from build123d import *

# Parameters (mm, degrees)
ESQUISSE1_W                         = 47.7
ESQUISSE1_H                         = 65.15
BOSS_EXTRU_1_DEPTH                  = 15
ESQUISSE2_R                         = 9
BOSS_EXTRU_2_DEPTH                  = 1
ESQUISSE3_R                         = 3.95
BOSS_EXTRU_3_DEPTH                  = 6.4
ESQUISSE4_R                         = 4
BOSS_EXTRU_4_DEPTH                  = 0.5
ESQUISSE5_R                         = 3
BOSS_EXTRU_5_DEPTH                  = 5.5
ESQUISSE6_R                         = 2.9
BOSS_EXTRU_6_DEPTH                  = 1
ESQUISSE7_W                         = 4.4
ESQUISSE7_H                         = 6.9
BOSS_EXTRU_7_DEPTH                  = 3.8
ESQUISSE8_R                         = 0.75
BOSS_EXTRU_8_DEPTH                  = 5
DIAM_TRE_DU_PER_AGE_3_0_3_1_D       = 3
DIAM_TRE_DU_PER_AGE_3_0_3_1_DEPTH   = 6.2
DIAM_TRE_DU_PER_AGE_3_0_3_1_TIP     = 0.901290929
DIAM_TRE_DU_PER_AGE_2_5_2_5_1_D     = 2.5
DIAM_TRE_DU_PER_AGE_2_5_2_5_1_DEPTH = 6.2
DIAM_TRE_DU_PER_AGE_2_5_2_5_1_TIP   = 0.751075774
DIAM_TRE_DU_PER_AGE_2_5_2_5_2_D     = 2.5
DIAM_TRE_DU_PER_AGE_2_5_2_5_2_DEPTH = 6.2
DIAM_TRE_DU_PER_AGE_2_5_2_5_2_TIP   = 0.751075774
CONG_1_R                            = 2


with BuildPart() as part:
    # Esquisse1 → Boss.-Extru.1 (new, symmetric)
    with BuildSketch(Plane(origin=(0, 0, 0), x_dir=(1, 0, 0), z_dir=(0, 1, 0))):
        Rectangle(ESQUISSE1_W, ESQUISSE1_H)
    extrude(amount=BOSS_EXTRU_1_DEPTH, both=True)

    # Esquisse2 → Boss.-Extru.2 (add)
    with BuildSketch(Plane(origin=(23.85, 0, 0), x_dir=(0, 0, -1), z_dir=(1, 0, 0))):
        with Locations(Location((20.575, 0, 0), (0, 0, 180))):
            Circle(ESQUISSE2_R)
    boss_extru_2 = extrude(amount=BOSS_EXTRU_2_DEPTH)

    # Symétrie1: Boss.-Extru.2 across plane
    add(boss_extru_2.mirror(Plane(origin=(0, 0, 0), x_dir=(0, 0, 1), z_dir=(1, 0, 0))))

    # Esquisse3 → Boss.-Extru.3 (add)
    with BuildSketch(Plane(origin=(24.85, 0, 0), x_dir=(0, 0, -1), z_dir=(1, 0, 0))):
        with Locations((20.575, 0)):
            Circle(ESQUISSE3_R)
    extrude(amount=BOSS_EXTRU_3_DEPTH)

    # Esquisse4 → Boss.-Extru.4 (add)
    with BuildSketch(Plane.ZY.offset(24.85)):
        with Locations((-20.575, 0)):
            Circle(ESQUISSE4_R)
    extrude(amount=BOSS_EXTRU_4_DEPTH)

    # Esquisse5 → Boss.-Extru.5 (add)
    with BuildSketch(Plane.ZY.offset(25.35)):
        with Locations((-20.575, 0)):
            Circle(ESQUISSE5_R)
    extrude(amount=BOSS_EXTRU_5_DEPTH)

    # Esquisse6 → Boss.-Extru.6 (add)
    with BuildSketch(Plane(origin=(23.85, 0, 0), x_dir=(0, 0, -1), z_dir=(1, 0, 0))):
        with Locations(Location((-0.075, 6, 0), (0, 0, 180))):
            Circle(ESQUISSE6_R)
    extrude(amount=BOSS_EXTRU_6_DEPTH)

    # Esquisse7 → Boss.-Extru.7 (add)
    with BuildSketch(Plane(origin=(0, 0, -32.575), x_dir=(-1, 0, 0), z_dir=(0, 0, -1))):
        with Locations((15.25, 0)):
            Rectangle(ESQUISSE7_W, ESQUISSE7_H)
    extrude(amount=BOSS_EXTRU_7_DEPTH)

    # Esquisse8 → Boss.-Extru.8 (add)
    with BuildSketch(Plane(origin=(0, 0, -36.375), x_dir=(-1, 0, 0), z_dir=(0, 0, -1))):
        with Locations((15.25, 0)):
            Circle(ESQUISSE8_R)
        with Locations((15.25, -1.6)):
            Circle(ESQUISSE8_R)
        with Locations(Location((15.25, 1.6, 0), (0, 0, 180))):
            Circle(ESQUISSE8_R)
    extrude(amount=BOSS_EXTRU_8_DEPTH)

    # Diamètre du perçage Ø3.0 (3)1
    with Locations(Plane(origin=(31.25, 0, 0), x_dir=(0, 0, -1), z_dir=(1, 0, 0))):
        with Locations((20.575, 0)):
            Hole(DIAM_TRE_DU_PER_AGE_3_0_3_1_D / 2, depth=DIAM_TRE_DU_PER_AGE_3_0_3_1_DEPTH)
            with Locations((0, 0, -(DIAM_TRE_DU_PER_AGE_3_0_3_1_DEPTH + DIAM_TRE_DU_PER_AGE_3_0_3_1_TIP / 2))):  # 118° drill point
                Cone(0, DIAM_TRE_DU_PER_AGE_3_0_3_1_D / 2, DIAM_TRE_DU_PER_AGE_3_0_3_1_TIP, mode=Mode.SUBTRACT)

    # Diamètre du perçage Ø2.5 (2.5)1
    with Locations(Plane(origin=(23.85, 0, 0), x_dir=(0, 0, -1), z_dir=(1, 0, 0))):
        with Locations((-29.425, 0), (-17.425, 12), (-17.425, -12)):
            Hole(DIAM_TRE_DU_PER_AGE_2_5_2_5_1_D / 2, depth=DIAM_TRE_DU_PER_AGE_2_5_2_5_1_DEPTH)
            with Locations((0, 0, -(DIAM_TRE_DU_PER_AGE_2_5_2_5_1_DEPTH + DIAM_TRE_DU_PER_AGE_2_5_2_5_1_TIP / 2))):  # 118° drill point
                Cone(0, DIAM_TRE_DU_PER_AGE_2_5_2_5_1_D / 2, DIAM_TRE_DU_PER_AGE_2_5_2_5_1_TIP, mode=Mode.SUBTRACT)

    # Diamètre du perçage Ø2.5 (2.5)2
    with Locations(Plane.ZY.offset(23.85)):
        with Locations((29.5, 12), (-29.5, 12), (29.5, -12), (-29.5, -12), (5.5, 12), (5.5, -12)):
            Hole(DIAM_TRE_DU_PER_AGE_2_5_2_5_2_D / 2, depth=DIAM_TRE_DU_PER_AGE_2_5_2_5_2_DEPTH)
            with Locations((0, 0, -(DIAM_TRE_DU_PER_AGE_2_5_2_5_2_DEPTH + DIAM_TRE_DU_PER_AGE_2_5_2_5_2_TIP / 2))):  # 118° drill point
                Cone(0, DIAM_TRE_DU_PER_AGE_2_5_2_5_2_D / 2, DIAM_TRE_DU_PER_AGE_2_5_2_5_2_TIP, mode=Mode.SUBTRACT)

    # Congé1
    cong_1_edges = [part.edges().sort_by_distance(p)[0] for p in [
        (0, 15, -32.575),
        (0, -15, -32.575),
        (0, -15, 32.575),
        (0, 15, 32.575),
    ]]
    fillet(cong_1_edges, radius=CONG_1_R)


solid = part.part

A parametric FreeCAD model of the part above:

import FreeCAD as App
import Part
import Sketcher


def edges_at(feature, points):
    """Names of the edges that pass closest to the given points."""
    edges = feature.Shape.Edges
    near = lambda p: min(range(len(edges)), key=lambda i: edges[i].distToShape(Part.Vertex(*p))[0])
    return sorted({f"Edge{near(p) + 1}" for p in points})


def add_polygon(sketch, points):
    """Adds a closed chain of lines whose ends are joined by coincident constraints."""
    first, n = sketch.GeometryCount, len(points)
    for a, b in zip(points, points[1:] + points[:1]):
        sketch.addGeometry(Part.LineSegment(App.Vector(*a, 0), App.Vector(*b, 0)), False)
    for i in range(n):
        sketch.addConstraint(Sketcher.Constraint("Coincident", first + i, 2, first + (i + 1) % n, 1))

doc = App.newDocument("Part")
body = doc.addObject("PartDesign::Body", "Body")

sketch1 = body.newObject("Sketcher::SketchObject", "Sketch")
sketch1.AttachmentSupport = (doc.getObject("XZ_Plane"), [""])
sketch1.MapMode = "FlatFace"
add_polygon(sketch1, [(-24, -33), (-24, 33), (24, 33), (24, -33)])
sketch1.addConstraint([
    Sketcher.Constraint("Vertical", 0),
    Sketcher.Constraint("Horizontal", 1),
    Sketcher.Constraint("Vertical", 2),
    Sketcher.Constraint("Horizontal", 3),
    Sketcher.Constraint("Symmetric", 0, 2, 2, 2, -1, 1),
    Sketcher.Constraint("DistanceX", 1, 1, 1, 2, 47.7),
    Sketcher.Constraint("DistanceY", 0, 1, 0, 2, 65.15),
])
pad1 = body.newObject("PartDesign::Pad", "Pad")
pad1.Profile = sketch1
pad1.Length = 30
pad1.Midplane = True

sketch2 = body.newObject("Sketcher::SketchObject", "Sketch001")
sketch2.AttachmentSupport = (doc.getObject("YZ_Plane"), [""])
sketch2.MapMode = "FlatFace"
sketch2.AttachmentOffset = App.Placement(App.Vector(0, 0, 23.85), App.Rotation())
sketch2.addGeometry(Part.Circle(App.Vector(0, -21, 0), App.Vector(0, 0, 1), 9), False)
sketch2.addConstraint([
    Sketcher.Constraint("PointOnObject", 0, 3, -2),
    Sketcher.Constraint("Diameter", 0, 18.0),
    Sketcher.Constraint("DistanceY", 0, 3, -1, 1, 20.575),
])
pad2 = body.newObject("PartDesign::Pad", "Pad001")
pad2.Profile = sketch2
pad2.Length = 1
doc.recompute()

mirrored = body.newObject("PartDesign::Mirrored", "Mirrored")
mirrored.Originals = [pad2]
mirrored.MirrorPlane = (doc.getObject("YZ_Plane"), [""])
body.Tip = mirrored

sketch3 = body.newObject("Sketcher::SketchObject", "Sketch002")
sketch3.AttachmentSupport = (doc.getObject("YZ_Plane"), [""])
sketch3.MapMode = "FlatFace"
sketch3.AttachmentOffset = App.Placement(App.Vector(0, 0, 24.85), App.Rotation())
sketch3.addGeometry(Part.Circle(App.Vector(0, -20.6, 0), App.Vector(0, 0, 1), 4), False)
sketch3.addConstraint([
    Sketcher.Constraint("PointOnObject", 0, 3, -2),
    Sketcher.Constraint("Diameter", 0, 7.9),
    Sketcher.Constraint("DistanceY", 0, 3, -1, 1, 20.575),
])
pad3 = body.newObject("PartDesign::Pad", "Pad002")
pad3.Profile = sketch3
pad3.Length = 6.4

sketch4 = body.newObject("Sketcher::SketchObject", "Sketch003")
sketch4.AttachmentSupport = (doc.getObject("YZ_Plane"), [""])
sketch4.MapMode = "FlatFace"
sketch4.AttachmentOffset = App.Placement(App.Vector(0, 0, -24.85), App.Rotation())
sketch4.addGeometry(Part.Circle(App.Vector(0, -20.6, 0), App.Vector(0, 0, 1), 4), False)
sketch4.addConstraint([
    Sketcher.Constraint("PointOnObject", 0, 3, -2),
    Sketcher.Constraint("Diameter", 0, 8.0),
    Sketcher.Constraint("DistanceY", 0, 3, -1, 1, 20.575),
])
pad4 = body.newObject("PartDesign::Pad", "Pad003")
pad4.Profile = sketch4
pad4.Length = 0.5
pad4.Reversed = True

sketch5 = body.newObject("Sketcher::SketchObject", "Sketch004")
sketch5.AttachmentSupport = (doc.getObject("YZ_Plane"), [""])
sketch5.MapMode = "FlatFace"
sketch5.AttachmentOffset = App.Placement(App.Vector(0, 0, -25.35), App.Rotation())
sketch5.addGeometry(Part.Circle(App.Vector(0, -20.6, 0), App.Vector(0, 0, 1), 3), False)
sketch5.addConstraint([
    Sketcher.Constraint("PointOnObject", 0, 3, -2),
    Sketcher.Constraint("Diameter", 0, 6.0),
    Sketcher.Constraint("DistanceY", 0, 3, -1, 1, 20.575),
])
pad5 = body.newObject("PartDesign::Pad", "Pad004")
pad5.Profile = sketch5
pad5.Length = 5.5
pad5.Reversed = True

sketch6 = body.newObject("Sketcher::SketchObject", "Sketch005")
sketch6.AttachmentSupport = (doc.getObject("YZ_Plane"), [""])
sketch6.MapMode = "FlatFace"
sketch6.AttachmentOffset = App.Placement(App.Vector(0, 0, 23.85), App.Rotation())
sketch6.addGeometry(Part.Circle(App.Vector(6, 0.1, 0), App.Vector(0, 0, 1), 2.9), False)
sketch6.addConstraint([
    Sketcher.Constraint("Diameter", 0, 5.8),
    Sketcher.Constraint("DistanceX", -1, 1, 0, 3, 6.0),
    Sketcher.Constraint("DistanceY", -1, 1, 0, 3, 0.075),
])
pad6 = body.newObject("PartDesign::Pad", "Pad005")
pad6.Profile = sketch6
pad6.Length = 1

sketch7 = body.newObject("Sketcher::SketchObject", "Sketch006")
sketch7.AttachmentSupport = (doc.getObject("XY_Plane"), [""])
sketch7.MapMode = "FlatFace"
sketch7.AttachmentOffset = App.Placement(App.Vector(0, 0, -32.575), App.Rotation())
add_polygon(sketch7, [(-13.1, 3.5), (-13.1, -3.5), (-17.4, -3.5), (-17.4, 3.5)])
sketch7.addConstraint([
    Sketcher.Constraint("Vertical", 0),
    Sketcher.Constraint("Horizontal", 1),
    Sketcher.Constraint("Vertical", 2),
    Sketcher.Constraint("Horizontal", 3),
    Sketcher.Constraint("DistanceX", 1, 2, 1, 1, 4.4),
    Sketcher.Constraint("DistanceY", 0, 2, 0, 1, 6.9),
    Sketcher.Constraint("DistanceX", 0, 2, -1, 1, 13.05),
    Sketcher.Constraint("DistanceY", 0, 2, -1, 1, 3.45),
])
pad7 = body.newObject("PartDesign::Pad", "Pad006")
pad7.Profile = sketch7
pad7.Length = 3.8
pad7.Reversed = True

sketch8 = body.newObject("Sketcher::SketchObject", "Sketch007")
sketch8.AttachmentSupport = (doc.getObject("XY_Plane"), [""])
sketch8.MapMode = "FlatFace"
sketch8.AttachmentOffset = App.Placement(App.Vector(0, 0, -36.375), App.Rotation())
sketch8.addGeometry([
    Part.Circle(App.Vector(-15.2, 0, 0), App.Vector(0, 0, 1), 0.8),
    Part.Circle(App.Vector(-15.2, -1.6, 0), App.Vector(0, 0, 1), 0.8),
    Part.Circle(App.Vector(-15.2, 1.6, 0), App.Vector(0, 0, 1), 0.8),
], False)
sketch8.addConstraint([
    Sketcher.Constraint("Equal", 0, 1),
    Sketcher.Constraint("Equal", 1, 2),
    Sketcher.Constraint("Symmetric", 1, 3, 2, 3, -1),
    Sketcher.Constraint("PointOnObject", 0, 3, -1),
    Sketcher.Constraint("Vertical", 0, 3, 1, 3),
    Sketcher.Constraint("Diameter", 0, 1.5),
    Sketcher.Constraint("DistanceY", 1, 3, -1, 1, 1.6),
    Sketcher.Constraint("DistanceX", 0, 3, -1, 1, 15.25),
])
pad8 = body.newObject("PartDesign::Pad", "Pad007")
pad8.Profile = sketch8
pad8.Length = 5
pad8.Reversed = True

sketch9 = body.newObject("Sketcher::SketchObject", "Sketch008")
sketch9.AttachmentSupport = (doc.getObject("YZ_Plane"), [""])
sketch9.MapMode = "FlatFace"
sketch9.AttachmentOffset = App.Placement(App.Vector(0, 0, 31.25), App.Rotation())
sketch9.addGeometry(Part.Circle(App.Vector(0, -20.6, 0), App.Vector(0, 0, 1), 1.5), False)
sketch9.addConstraint([
    Sketcher.Constraint("PointOnObject", 0, 3, -2),
    Sketcher.Constraint("Diameter", 0, 3.0),
    Sketcher.Constraint("DistanceY", 0, 3, -1, 1, 20.575),
])
doc.recompute()
hole = body.newObject("PartDesign::Hole", "Hole")
hole.Profile = sketch9
hole.ThreadType = "None"
hole.Diameter = 3
hole.DepthType = "Dimension"
hole.Depth = 6.2
hole.DrillPoint = "Angled"
hole.DrillPointAngle = 118

sketch10 = body.newObject("Sketcher::SketchObject", "Sketch009")
sketch10.AttachmentSupport = (doc.getObject("YZ_Plane"), [""])
sketch10.MapMode = "FlatFace"
sketch10.AttachmentOffset = App.Placement(App.Vector(0, 0, 23.85), App.Rotation())
sketch10.addGeometry([
    Part.Circle(App.Vector(0, 29.4, 0), App.Vector(0, 0, 1), 1.2),
    Part.Circle(App.Vector(12, 17.4, 0), App.Vector(0, 0, 1), 1.2),
    Part.Circle(App.Vector(-12, 17.4, 0), App.Vector(0, 0, 1), 1.2),
], False)
sketch10.addConstraint([
    Sketcher.Constraint("Equal", 0, 1),
    Sketcher.Constraint("Equal", 1, 2),
    Sketcher.Constraint("Symmetric", 1, 3, 2, 3, -2),
    Sketcher.Constraint("PointOnObject", 0, 3, -2),
    Sketcher.Constraint("Diameter", 0, 2.5),
    Sketcher.Constraint("DistanceX", -1, 1, 1, 3, 12.0),
    Sketcher.Constraint("DistanceY", 1, 3, 0, 3, 12.0),
    Sketcher.Constraint("DistanceY", -1, 1, 0, 3, 29.425),
])
doc.recompute()
hole2 = body.newObject("PartDesign::Hole", "Hole001")
hole2.Profile = sketch10
hole2.ThreadType = "None"
hole2.Diameter = 2.5
hole2.DepthType = "Dimension"
hole2.Depth = 6.2
hole2.DrillPoint = "Angled"
hole2.DrillPointAngle = 118

sketch11 = body.newObject("Sketcher::SketchObject", "Sketch010")
sketch11.AttachmentSupport = (doc.getObject("YZ_Plane"), [""])
sketch11.MapMode = "FlatFace"
sketch11.AttachmentOffset = App.Placement(App.Vector(0, 0, -23.85), App.Rotation())
sketch11.addGeometry([
    Part.Circle(App.Vector(12, 29.5, 0), App.Vector(0, 0, 1), 1.2),
    Part.Circle(App.Vector(12, -29.5, 0), App.Vector(0, 0, 1), 1.2),
    Part.Circle(App.Vector(-12, 29.5, 0), App.Vector(0, 0, 1), 1.2),
    Part.Circle(App.Vector(-12, -29.5, 0), App.Vector(0, 0, 1), 1.2),
    Part.Circle(App.Vector(12, 5.5, 0), App.Vector(0, 0, 1), 1.2),
    Part.Circle(App.Vector(-12, 5.5, 0), App.Vector(0, 0, 1), 1.2),
], False)
sketch11.addConstraint([
    Sketcher.Constraint("Equal", 0, 1),
    Sketcher.Constraint("Equal", 1, 2),
    Sketcher.Constraint("Equal", 2, 3),
    Sketcher.Constraint("Equal", 3, 4),
    Sketcher.Constraint("Equal", 4, 5),
    Sketcher.Constraint("Symmetric", 1, 3, 2, 3, -1, 1),
    Sketcher.Constraint("Symmetric", 0, 3, 3, 3, -1, 1),
    Sketcher.Constraint("Symmetric", 0, 3, 2, 3, -2),
    Sketcher.Constraint("Symmetric", 4, 3, 5, 3, -2),
    Sketcher.Constraint("Vertical", 1, 3, 4, 3),
    Sketcher.Constraint("Diameter", 0, 2.5),
    Sketcher.Constraint("DistanceX", -1, 1, 0, 3, 12.0),
    Sketcher.Constraint("DistanceY", 1, 3, 0, 3, 59.0),
    Sketcher.Constraint("DistanceY", 4, 3, 0, 3, 24.0),
])
doc.recompute()
hole3 = body.newObject("PartDesign::Hole", "Hole002")
hole3.Profile = sketch11
hole3.ThreadType = "None"
hole3.Diameter = 2.5
hole3.DepthType = "Dimension"
hole3.Depth = 6.2
hole3.DrillPoint = "Angled"
hole3.DrillPointAngle = 118
hole3.Reversed = True
doc.recompute()

fillet = body.newObject("PartDesign::Fillet", "Fillet")
fillet.Base = (hole3, edges_at(hole3, [
    (0, 15, -32.575),
    (0, -15, -32.575),
    (0, -15, 32.575),
    (0, 15, 32.575),
]))
fillet.Radius = 2

doc.recompute()
